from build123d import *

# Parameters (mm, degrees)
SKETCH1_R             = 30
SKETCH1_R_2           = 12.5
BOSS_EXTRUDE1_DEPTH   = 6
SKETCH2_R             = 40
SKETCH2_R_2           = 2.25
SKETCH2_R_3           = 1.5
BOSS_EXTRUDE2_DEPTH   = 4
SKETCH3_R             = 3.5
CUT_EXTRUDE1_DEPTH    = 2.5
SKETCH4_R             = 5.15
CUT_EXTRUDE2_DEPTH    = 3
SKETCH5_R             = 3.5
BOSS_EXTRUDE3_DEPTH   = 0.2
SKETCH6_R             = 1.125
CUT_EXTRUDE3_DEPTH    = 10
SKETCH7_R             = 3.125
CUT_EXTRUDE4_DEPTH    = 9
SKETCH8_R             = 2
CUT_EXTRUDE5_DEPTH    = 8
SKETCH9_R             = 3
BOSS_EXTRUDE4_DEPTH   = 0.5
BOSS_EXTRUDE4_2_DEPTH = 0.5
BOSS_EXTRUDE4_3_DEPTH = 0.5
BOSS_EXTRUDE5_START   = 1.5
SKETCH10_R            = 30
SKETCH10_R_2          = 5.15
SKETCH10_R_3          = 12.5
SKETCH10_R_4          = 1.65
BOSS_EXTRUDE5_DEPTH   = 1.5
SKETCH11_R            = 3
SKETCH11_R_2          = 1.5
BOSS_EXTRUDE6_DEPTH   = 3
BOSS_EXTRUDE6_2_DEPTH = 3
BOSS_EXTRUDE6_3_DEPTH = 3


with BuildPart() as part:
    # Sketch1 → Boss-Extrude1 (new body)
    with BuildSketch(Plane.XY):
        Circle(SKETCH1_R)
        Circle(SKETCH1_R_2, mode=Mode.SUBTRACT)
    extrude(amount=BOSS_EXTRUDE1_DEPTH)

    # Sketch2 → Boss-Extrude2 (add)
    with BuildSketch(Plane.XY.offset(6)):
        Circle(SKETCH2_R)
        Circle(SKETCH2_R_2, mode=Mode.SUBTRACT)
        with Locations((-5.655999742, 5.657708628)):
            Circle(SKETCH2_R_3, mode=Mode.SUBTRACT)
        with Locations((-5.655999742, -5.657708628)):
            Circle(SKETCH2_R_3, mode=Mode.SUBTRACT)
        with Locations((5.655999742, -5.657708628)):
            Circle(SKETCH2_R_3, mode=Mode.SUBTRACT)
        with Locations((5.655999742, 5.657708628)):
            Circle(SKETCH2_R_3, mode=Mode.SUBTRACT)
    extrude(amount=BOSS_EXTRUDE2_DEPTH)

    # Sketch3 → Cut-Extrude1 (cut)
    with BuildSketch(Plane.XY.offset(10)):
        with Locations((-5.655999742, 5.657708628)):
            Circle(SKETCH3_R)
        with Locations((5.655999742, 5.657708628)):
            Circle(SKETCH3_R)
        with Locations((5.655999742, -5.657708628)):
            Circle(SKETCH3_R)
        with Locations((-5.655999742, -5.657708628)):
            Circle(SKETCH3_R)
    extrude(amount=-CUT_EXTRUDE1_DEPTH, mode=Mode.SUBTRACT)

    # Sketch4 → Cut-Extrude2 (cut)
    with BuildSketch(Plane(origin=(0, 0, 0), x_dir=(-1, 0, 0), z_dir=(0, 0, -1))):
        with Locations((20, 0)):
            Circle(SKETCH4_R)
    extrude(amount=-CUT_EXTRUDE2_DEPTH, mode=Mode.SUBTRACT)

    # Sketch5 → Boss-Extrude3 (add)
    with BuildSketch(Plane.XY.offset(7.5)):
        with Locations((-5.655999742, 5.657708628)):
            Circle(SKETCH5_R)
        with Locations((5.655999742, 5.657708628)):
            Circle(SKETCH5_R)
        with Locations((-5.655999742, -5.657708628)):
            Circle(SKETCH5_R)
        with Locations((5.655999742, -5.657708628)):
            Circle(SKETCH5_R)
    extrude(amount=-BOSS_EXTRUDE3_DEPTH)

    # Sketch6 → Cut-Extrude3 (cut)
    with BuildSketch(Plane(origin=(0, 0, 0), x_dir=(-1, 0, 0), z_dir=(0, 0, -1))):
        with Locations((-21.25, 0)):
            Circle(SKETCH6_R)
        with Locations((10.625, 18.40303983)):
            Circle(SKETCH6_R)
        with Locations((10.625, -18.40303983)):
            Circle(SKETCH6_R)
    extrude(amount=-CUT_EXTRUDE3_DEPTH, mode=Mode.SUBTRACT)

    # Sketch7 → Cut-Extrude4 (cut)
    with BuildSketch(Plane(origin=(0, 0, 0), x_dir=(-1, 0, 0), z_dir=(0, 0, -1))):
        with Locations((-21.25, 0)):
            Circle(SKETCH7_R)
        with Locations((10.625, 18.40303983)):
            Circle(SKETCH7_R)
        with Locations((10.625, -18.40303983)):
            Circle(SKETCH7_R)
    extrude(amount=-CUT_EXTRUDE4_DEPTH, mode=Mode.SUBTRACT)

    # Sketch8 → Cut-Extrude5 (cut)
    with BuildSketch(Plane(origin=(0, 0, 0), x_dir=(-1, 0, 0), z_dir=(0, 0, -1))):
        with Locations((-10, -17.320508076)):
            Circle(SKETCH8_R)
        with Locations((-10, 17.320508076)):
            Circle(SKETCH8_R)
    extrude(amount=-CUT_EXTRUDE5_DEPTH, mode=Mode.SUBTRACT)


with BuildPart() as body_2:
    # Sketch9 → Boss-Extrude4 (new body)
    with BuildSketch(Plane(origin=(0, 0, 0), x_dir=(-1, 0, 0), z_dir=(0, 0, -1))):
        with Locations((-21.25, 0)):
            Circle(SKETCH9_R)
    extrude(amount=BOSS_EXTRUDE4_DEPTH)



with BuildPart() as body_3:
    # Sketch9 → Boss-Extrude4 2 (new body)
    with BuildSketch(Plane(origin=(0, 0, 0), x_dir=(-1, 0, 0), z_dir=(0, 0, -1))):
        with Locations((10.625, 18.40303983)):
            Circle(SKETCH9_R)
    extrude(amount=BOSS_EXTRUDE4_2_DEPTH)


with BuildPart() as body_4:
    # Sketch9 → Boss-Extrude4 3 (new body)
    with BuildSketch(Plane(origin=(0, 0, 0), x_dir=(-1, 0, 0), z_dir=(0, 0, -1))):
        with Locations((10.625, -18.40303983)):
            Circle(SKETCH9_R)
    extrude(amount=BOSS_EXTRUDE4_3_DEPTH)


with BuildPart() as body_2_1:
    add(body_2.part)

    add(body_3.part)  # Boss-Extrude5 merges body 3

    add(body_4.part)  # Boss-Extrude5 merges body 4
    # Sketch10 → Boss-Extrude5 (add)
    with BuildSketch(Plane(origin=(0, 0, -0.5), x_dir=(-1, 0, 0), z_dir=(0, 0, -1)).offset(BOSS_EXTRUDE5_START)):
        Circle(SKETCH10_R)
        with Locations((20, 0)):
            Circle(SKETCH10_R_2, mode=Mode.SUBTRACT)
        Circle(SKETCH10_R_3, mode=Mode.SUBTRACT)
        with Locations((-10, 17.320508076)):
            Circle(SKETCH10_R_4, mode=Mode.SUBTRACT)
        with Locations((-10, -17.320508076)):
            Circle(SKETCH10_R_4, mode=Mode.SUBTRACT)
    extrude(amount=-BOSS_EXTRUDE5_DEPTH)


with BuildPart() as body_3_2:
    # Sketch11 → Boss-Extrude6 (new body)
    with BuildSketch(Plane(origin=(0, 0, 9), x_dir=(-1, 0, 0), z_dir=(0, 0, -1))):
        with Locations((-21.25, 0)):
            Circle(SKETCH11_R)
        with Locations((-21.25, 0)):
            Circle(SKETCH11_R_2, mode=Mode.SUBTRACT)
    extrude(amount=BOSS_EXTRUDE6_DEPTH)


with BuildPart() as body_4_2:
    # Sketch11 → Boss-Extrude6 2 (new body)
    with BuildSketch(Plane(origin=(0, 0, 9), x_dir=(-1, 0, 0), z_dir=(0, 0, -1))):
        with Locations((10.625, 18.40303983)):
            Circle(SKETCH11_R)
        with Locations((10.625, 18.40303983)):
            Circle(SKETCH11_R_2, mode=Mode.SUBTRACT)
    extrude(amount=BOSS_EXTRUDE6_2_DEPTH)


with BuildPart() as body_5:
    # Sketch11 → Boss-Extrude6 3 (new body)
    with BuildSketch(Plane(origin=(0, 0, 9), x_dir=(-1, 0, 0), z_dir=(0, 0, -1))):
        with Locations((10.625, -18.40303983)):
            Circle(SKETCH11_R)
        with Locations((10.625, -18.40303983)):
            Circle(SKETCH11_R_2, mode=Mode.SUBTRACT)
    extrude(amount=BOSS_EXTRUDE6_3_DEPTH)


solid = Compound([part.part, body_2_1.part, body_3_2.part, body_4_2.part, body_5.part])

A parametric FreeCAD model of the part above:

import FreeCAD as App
import Part
import Sketcher

doc = App.newDocument("Part")
body = doc.addObject("PartDesign::Body", "Body")

# Sketch on XY plane
sketch1 = body.newObject("Sketcher::SketchObject", "Sketch")
sketch1.AttachmentSupport = (doc.getObject("XY_Plane"), [""])
sketch1.MapMode = "FlatFace"
sketch1.addGeometry([
    Part.Circle(App.Vector(0, 0, 0), App.Vector(0, 0, 1), 30),
    Part.Circle(App.Vector(0, 0, 0), App.Vector(0, 0, 1), 12),
], False)
sketch1.addConstraint([
    Sketcher.Constraint("Coincident", 0, 3, -1, 1),
    Sketcher.Constraint("Coincident", 1, 3, -1, 1),
    Sketcher.Constraint("Diameter", 0, 60.0),
    Sketcher.Constraint("Diameter", 1, 25.0),
])
pad1 = body.newObject("PartDesign::Pad", "Pad")
pad1.Profile = sketch1
pad1.Length = 6

# Sketch on XY plane
sketch2 = body.newObject("Sketcher::SketchObject", "Sketch001")
sketch2.AttachmentSupport = (doc.getObject("XY_Plane"), [""])
sketch2.MapMode = "FlatFace"
sketch2.AttachmentOffset = App.Placement(App.Vector(0, 0, 6), App.Rotation())
sketch2.addGeometry([
    Part.Circle(App.Vector(0, 0, 0), App.Vector(0, 0, 1), 40),  # 0
    Part.Circle(App.Vector(-5.7, -5.7, 0), App.Vector(0, 0, 1), 1.5),  # 1
    Part.Circle(App.Vector(5.7, -5.7, 0), App.Vector(0, 0, 1), 1.5),  # 2
    Part.Circle(App.Vector(-5.7, 5.7, 0), App.Vector(0, 0, 1), 1.5),  # 3
    Part.Circle(App.Vector(0, 0, 0), App.Vector(0, 0, 1), 2.2),  # 4
    Part.Circle(App.Vector(5.7, 5.7, 0), App.Vector(0, 0, 1), 1.5),  # 5
], False)
sketch2.addConstraint([
    Sketcher.Constraint("Coincident", 0, 3, -1, 1),
    Sketcher.Constraint("Coincident", 4, 3, -1, 1),
    Sketcher.Constraint("Equal", 1, 2),
    Sketcher.Constraint("Equal", 2, 3),
    Sketcher.Constraint("Equal", 3, 5),
    Sketcher.Constraint("Symmetric", 2, 3, 3, 3, -1, 1),
    Sketcher.Constraint("Symmetric", 1, 3, 5, 3, -1, 1),
    Sketcher.Constraint("Symmetric", 1, 3, 2, 3, -2),
    Sketcher.Constraint("Diameter", 0, 80.0),
    Sketcher.Constraint("Diameter", 1, 3.0),
    Sketcher.Constraint("Diameter", 4, 4.5),
    Sketcher.Constraint("DistanceX", 1, 3, -1, 1, 5.656),
    Sketcher.Constraint("DistanceY", 1, 3, -1, 1, 5.657709),
])
pad2 = body.newObject("PartDesign::Pad", "Pad001")
pad2.Profile = sketch2
pad2.Length = 4

# Sketch on XY plane
sketch3 = body.newObject("Sketcher::SketchObject", "Sketch002")
sketch3.AttachmentSupport = (doc.getObject("XY_Plane"), [""])
sketch3.MapMode = "FlatFace"
sketch3.AttachmentOffset = App.Placement(App.Vector(0, 0, 10), App.Rotation())
sketch3.addGeometry([
    Part.Circle(App.Vector(-5.7, 5.7, 0), App.Vector(0, 0, 1), 3.5),
    Part.Circle(App.Vector(5.7, 5.7, 0), App.Vector(0, 0, 1), 3.5),
    Part.Circle(App.Vector(5.7, -5.7, 0), App.Vector(0, 0, 1), 3.5),
    Part.Circle(App.Vector(-5.7, -5.7, 0), App.Vector(0, 0, 1), 3.5),
], False)
sketch3.addConstraint([
    Sketcher.Constraint("Equal", 0, 1),
    Sketcher.Constraint("Equal", 1, 2),
    Sketcher.Constraint("Equal", 2, 3),
    Sketcher.Constraint("Symmetric", 0, 3, 2, 3, -1, 1),
    Sketcher.Constraint("Symmetric", 1, 3, 3, 3, -1, 1),
    Sketcher.Constraint("Symmetric", 0, 3, 1, 3, -2),
    Sketcher.Constraint("Diameter", 0, 7.0),
    Sketcher.Constraint("DistanceX", 0, 3, -1, 1, 5.656),
    Sketcher.Constraint("DistanceY", -1, 1, 0, 3, 5.657709),
])
pocket1 = body.newObject("PartDesign::Pocket", "Pocket")
pocket1.Profile = sketch3
pocket1.Length = 2.5

# Sketch on XY plane
sketch4 = body.newObject("Sketcher::SketchObject", "Sketch003")
sketch4.AttachmentSupport = (doc.getObject("XY_Plane"), [""])
sketch4.MapMode = "FlatFace"
sketch4.addGeometry(Part.Circle(App.Vector(-20, 0, 0), App.Vector(0, 0, 1), 5), False)
sketch4.addConstraint([
    Sketcher.Constraint("PointOnObject", 0, 3, -1),
    Sketcher.Constraint("Diameter", 0, 10.3),
    Sketcher.Constraint("DistanceX", 0, 3, -1, 1, 20.0),
])
pocket2 = body.newObject("PartDesign::Pocket", "Pocket001")
pocket2.Profile = sketch4
pocket2.Length = 3
pocket2.Reversed = True

# Sketch on XY plane
sketch5 = body.newObject("Sketcher::SketchObject", "Sketch004")
sketch5.AttachmentSupport = (doc.getObject("XY_Plane"), [""])
sketch5.MapMode = "FlatFace"
sketch5.AttachmentOffset = App.Placement(App.Vector(0, 0, 7.5), App.Rotation())
sketch5.addGeometry([
    Part.Circle(App.Vector(-5.7, 5.7, 0), App.Vector(0, 0, 1), 3.5),
    Part.Circle(App.Vector(5.7, 5.7, 0), App.Vector(0, 0, 1), 3.5),
    Part.Circle(App.Vector(-5.7, -5.7, 0), App.Vector(0, 0, 1), 3.5),
    Part.Circle(App.Vector(5.7, -5.7, 0), App.Vector(0, 0, 1), 3.5),
], False)
sketch5.addConstraint([
    Sketcher.Constraint("Equal", 0, 1),
    Sketcher.Constraint("Equal", 1, 2),
    Sketcher.Constraint("Equal", 2, 3),
    Sketcher.Constraint("Symmetric", 1, 3, 2, 3, -1, 1),
    Sketcher.Constraint("Symmetric", 0, 3, 3, 3, -1, 1),
    Sketcher.Constraint("Symmetric", 0, 3, 1, 3, -2),
    Sketcher.Constraint("Diameter", 0, 7.0),
    Sketcher.Constraint("DistanceX", 0, 3, -1, 1, 5.656),
    Sketcher.Constraint("DistanceY", -1, 1, 0, 3, 5.657709),
])
pad3 = body.newObject("PartDesign::Pad", "Pad002")
pad3.Profile = sketch5
pad3.Length = 0.2
pad3.Reversed = True

# Sketch on XY plane
sketch6 = body.newObject("Sketcher::SketchObject", "Sketch005")
sketch6.AttachmentSupport = (doc.getObject("XY_Plane"), [""])
sketch6.MapMode = "FlatFace"
sketch6.addGeometry([
    Part.Circle(App.Vector(21.2, 0, 0), App.Vector(0, 0, 1), 1.1),
    Part.Circle(App.Vector(-10.6, 18.4, 0), App.Vector(0, 0, 1), 1.1),
    Part.Circle(App.Vector(-10.6, -18.4, 0), App.Vector(0, 0, 1), 1.1),
], False)
sketch6.addConstraint([
    Sketcher.Constraint("Equal", 0, 1),
    Sketcher.Constraint("Equal", 1, 2),
    Sketcher.Constraint("Symmetric", 1, 3, 2, 3, -1),
    Sketcher.Constraint("PointOnObject", 0, 3, -1),
    Sketcher.Constraint("Diameter", 0, 2.25),
    Sketcher.Constraint("DistanceX", -1, 1, 0, 3, 21.25),
    Sketcher.Constraint("DistanceX", 1, 3, -1, 1, 10.625),
    Sketcher.Constraint("DistanceY", -1, 1, 1, 3, 18.40304),
])
pocket3 = body.newObject("PartDesign::Pocket", "Pocket002")
pocket3.Profile = sketch6
pocket3.Length = 10
pocket3.Reversed = True

# Sketch on XY plane
sketch7 = body.newObject("Sketcher::SketchObject", "Sketch006")
sketch7.AttachmentSupport = (doc.getObject("XY_Plane"), [""])
sketch7.MapMode = "FlatFace"
sketch7.addGeometry([
    Part.Circle(App.Vector(21.2, 0, 0), App.Vector(0, 0, 1), 3.1),
    Part.Circle(App.Vector(-10.6, 18.4, 0), App.Vector(0, 0, 1), 3.1),
    Part.Circle(App.Vector(-10.6, -18.4, 0), App.Vector(0, 0, 1), 3.1),
], False)
sketch7.addConstraint([
    Sketcher.Constraint("Equal", 0, 1),
    Sketcher.Constraint("Equal", 1, 2),
    Sketcher.Constraint("Symmetric", 1, 3, 2, 3, -1),
    Sketcher.Constraint("PointOnObject", 0, 3, -1),
    Sketcher.Constraint("Diameter", 0, 6.25),
    Sketcher.Constraint("DistanceX", -1, 1, 0, 3, 21.25),
    Sketcher.Constraint("DistanceX", 1, 3, -1, 1, 10.625),
    Sketcher.Constraint("DistanceY", -1, 1, 1, 3, 18.40304),
])
pocket4 = body.newObject("PartDesign::Pocket", "Pocket003")
pocket4.Profile = sketch7
pocket4.Length = 9
pocket4.Reversed = True

# Sketch on XY plane
sketch8 = body.newObject("Sketcher::SketchObject", "Sketch007")
sketch8.AttachmentSupport = (doc.getObject("XY_Plane"), [""])
sketch8.MapMode = "FlatFace"
sketch8.addGeometry([
    Part.Circle(App.Vector(10, -17.3, 0), App.Vector(0, 0, 1), 2),
    Part.Circle(App.Vector(10, 17.3, 0), App.Vector(0, 0, 1), 2),
], False)
sketch8.addConstraint([
    Sketcher.Constraint("Equal", 0, 1),
    Sketcher.Constraint("Symmetric", 0, 3, 1, 3, -1),
    Sketcher.Constraint("Diameter", 0, 4.0),
    Sketcher.Constraint("DistanceX", -1, 1, 0, 3, 10.0),
    Sketcher.Constraint("DistanceY", 0, 3, -1, 1, 17.320508),
])
pocket5 = body.newObject("PartDesign::Pocket", "Pocket004")
pocket5.Profile = sketch8
pocket5.Length = 8
pocket5.Reversed = True
body2 = doc.addObject("PartDesign::Body", "Body001")

# Sketch on XY plane
sketch9 = body2.newObject("Sketcher::SketchObject", "Sketch008")
sketch9.AttachmentSupport = (doc.getObject("XY_Plane001"), [""])
sketch9.MapMode = "FlatFace"
sketch9.addGeometry(Part.Circle(App.Vector(21.2, 0, 0), App.Vector(0, 0, 1), 3), False)
sketch9.addConstraint([
    Sketcher.Constraint("PointOnObject", 0, 3, -1),
    Sketcher.Constraint("Diameter", 0, 6.0),
    Sketcher.Constraint("DistanceX", -1, 1, 0, 3, 21.25),
])
pad4 = body2.newObject("PartDesign::Pad", "Pad003")
pad4.Profile = sketch9
pad4.Length = 0.5
pad4.Reversed = True
body3 = doc.addObject("PartDesign::Body", "Body002")

# Sketch on XY plane
sketch10 = body3.newObject("Sketcher::SketchObject", "Sketch009")
sketch10.AttachmentSupport = (doc.getObject("XY_Plane002"), [""])
sketch10.MapMode = "FlatFace"
sketch10.addGeometry(Part.Circle(App.Vector(-10.6, 18.4, 0), App.Vector(0, 0, 1), 3), False)
sketch10.addConstraint([
    Sketcher.Constraint("Diameter", 0, 6.0),
    Sketcher.Constraint("DistanceX", 0, 3, -1, 1, 10.625),
    Sketcher.Constraint("DistanceY", -1, 1, 0, 3, 18.40304),
])
pad5 = body3.newObject("PartDesign::Pad", "Pad004")
pad5.Profile = sketch10
pad5.Length = 0.5
pad5.Reversed = True
body4 = doc.addObject("PartDesign::Body", "Body003")

# Sketch on XY plane
sketch11 = body4.newObject("Sketcher::SketchObject", "Sketch010")
sketch11.AttachmentSupport = (doc.getObject("XY_Plane003"), [""])
sketch11.MapMode = "FlatFace"
sketch11.addGeometry(Part.Circle(App.Vector(-10.6, -18.4, 0), App.Vector(0, 0, 1), 3), False)
sketch11.addConstraint([
    Sketcher.Constraint("Diameter", 0, 6.0),
    Sketcher.Constraint("DistanceX", 0, 3, -1, 1, 10.625),
    Sketcher.Constraint("DistanceY", 0, 3, -1, 1, 18.40304),
])
pad6 = body4.newObject("PartDesign::Pad", "Pad005")
pad6.Profile = sketch11
pad6.Length = 0.5
pad6.Reversed = True
body2.AllowCompound = True
doc.recompute()

boolean = body2.newObject("PartDesign::Boolean", "Boolean")
boolean.Type = "Fuse"
boolean.addObjects([body3])
doc.recompute()

boolean2 = body2.newObject("PartDesign::Boolean", "Boolean001")
boolean2.Type = "Fuse"
boolean2.addObjects([body4])

# Sketch on XY plane
sketch12 = body2.newObject("Sketcher::SketchObject", "Sketch011")
sketch12.AttachmentSupport = (doc.getObject("XY_Plane001"), [""])
sketch12.MapMode = "FlatFace"
sketch12.AttachmentOffset = App.Placement(App.Vector(0, 0, -2), App.Rotation())
sketch12.addGeometry([
    Part.Circle(App.Vector(0, 0, 0), App.Vector(0, 0, 1), 30),  # 0
    Part.Circle(App.Vector(10, -17.3, 0), App.Vector(0, 0, 1), 1.6),  # 1
    Part.Circle(App.Vector(0, 0, 0), App.Vector(0, 0, 1), 12.5),  # 2
    Part.Circle(App.Vector(10, 17.3, 0), App.Vector(0, 0, 1), 1.6),  # 3
    Part.Circle(App.Vector(-20, 0, 0), App.Vector(0, 0, 1), 5.2),  # 4
], False)
sketch12.addConstraint([
    Sketcher.Constraint("Coincident", 0, 3, -1, 1),
    Sketcher.Constraint("Coincident", 2, 3, -1, 1),
    Sketcher.Constraint("Equal", 1, 3),
    Sketcher.Constraint("Symmetric", 1, 3, 3, 3, -1),
    Sketcher.Constraint("PointOnObject", 4, 3, -1),
    Sketcher.Constraint("Diameter", 0, 60.0),
    Sketcher.Constraint("Diameter", 2, 25.0),
    Sketcher.Constraint("Diameter", 1, 3.3),
    Sketcher.Constraint("Diameter", 4, 10.3),
    Sketcher.Constraint("DistanceX", -1, 1, 1, 3, 10.0),
    Sketcher.Constraint("DistanceX", 4, 3, -1, 1, 20.0),
    Sketcher.Constraint("DistanceY", 1, 3, -1, 1, 17.320508),
])
pad7 = body2.newObject("PartDesign::Pad", "Pad006")
pad7.Profile = sketch12
pad7.Length = 1.5
body5 = doc.addObject("PartDesign::Body", "Body004")

# Sketch on XY plane
sketch13 = body5.newObject("Sketcher::SketchObject", "Sketch012")
sketch13.AttachmentSupport = (doc.getObject("XY_Plane004"), [""])
sketch13.MapMode = "FlatFace"
sketch13.AttachmentOffset = App.Placement(App.Vector(0, 0, 9), App.Rotation())
sketch13.addGeometry([
    Part.Circle(App.Vector(21.2, 0, 0), App.Vector(0, 0, 1), 3),
    Part.Circle(App.Vector(21.2, 0, 0), App.Vector(0, 0, 1), 1.5),
], False)
sketch13.addConstraint([
    Sketcher.Constraint("Coincident", 1, 3, 0, 3),
    Sketcher.Constraint("PointOnObject", 0, 3, -1),
    Sketcher.Constraint("Diameter", 0, 6.0),
    Sketcher.Constraint("Diameter", 1, 3.0),
    Sketcher.Constraint("DistanceX", -1, 1, 0, 3, 21.25),
])
pad8 = body5.newObject("PartDesign::Pad", "Pad007")
pad8.Profile = sketch13
pad8.Length = 3
pad8.Reversed = True
body6 = doc.addObject("PartDesign::Body", "Body005")

# Sketch on XY plane
sketch14 = body6.newObject("Sketcher::SketchObject", "Sketch013")
sketch14.AttachmentSupport = (doc.getObject("XY_Plane005"), [""])
sketch14.MapMode = "FlatFace"
sketch14.AttachmentOffset = App.Placement(App.Vector(0, 0, 9), App.Rotation())
sketch14.addGeometry([
    Part.Circle(App.Vector(-10.6, 18.4, 0), App.Vector(0, 0, 1), 3),
    Part.Circle(App.Vector(-10.6, 18.4, 0), App.Vector(0, 0, 1), 1.5),
], False)
sketch14.addConstraint([
    Sketcher.Constraint("Coincident", 1, 3, 0, 3),
    Sketcher.Constraint("Diameter", 0, 6.0),
    Sketcher.Constraint("Diameter", 1, 3.0),
    Sketcher.Constraint("DistanceX", 0, 3, -1, 1, 10.625),
    Sketcher.Constraint("DistanceY", -1, 1, 0, 3, 18.40304),
])
pad9 = body6.newObject("PartDesign::Pad", "Pad008")
pad9.Profile = sketch14
pad9.Length = 3
pad9.Reversed = True
body7 = doc.addObject("PartDesign::Body", "Body006")

# Sketch on XY plane
sketch15 = body7.newObject("Sketcher::SketchObject", "Sketch014")
sketch15.AttachmentSupport = (doc.getObject("XY_Plane006"), [""])
sketch15.MapMode = "FlatFace"
sketch15.AttachmentOffset = App.Placement(App.Vector(0, 0, 9), App.Rotation())
sketch15.addGeometry([
    Part.Circle(App.Vector(-10.6, -18.4, 0), App.Vector(0, 0, 1), 3),
    Part.Circle(App.Vector(-10.6, -18.4, 0), App.Vector(0, 0, 1), 1.5),
], False)
sketch15.addConstraint([
    Sketcher.Constraint("Coincident", 1, 3, 0, 3),
    Sketcher.Constraint("Diameter", 0, 6.0),
    Sketcher.Constraint("Diameter", 1, 3.0),
    Sketcher.Constraint("DistanceX", 0, 3, -1, 1, 10.625),
    Sketcher.Constraint("DistanceY", 0, 3, -1, 1, 18.40304),
])
pad10 = body7.newObject("PartDesign::Pad", "Pad009")
pad10.Profile = sketch15
pad10.Length = 3
pad10.Reversed = True

doc.recompute()
